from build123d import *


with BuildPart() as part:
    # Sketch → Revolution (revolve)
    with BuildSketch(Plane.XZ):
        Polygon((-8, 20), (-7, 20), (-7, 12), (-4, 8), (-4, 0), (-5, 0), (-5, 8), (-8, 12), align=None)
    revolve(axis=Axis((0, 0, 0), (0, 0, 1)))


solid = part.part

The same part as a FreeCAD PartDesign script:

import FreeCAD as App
import Part
import Sketcher

V = App.Vector
Q = App.Units.Quantity


def add_polygon(sketch, points):
    """Adds a closed chain of lines whose ends are joined by coincident constraints."""
    first, n = sketch.GeometryCount, len(points)
    for a, b in zip(points, points[1:] + points[:1]):
        sketch.addGeometry(Part.LineSegment(App.Vector(*a, 0), App.Vector(*b, 0)), False)
    for i in range(n):
        sketch.addConstraint(Sketcher.Constraint("Coincident", first + i, 2, first + (i + 1) % n, 1))

doc = App.newDocument("Part")
body = doc.addObject("PartDesign::Body", "Body")

# Sketch on XZ plane
sketch1 = doc.addObject("Sketcher::SketchObject", "Sketch")
body.addObject(sketch1)
sketch1.AttachmentSupport = (doc.XZ_Plane, [""])
sketch1.MapMode = "FlatFace"
add_polygon(sketch1, [(-7, 20), (-8, 20), (-8, 12), (-5, 8), (-5, 0), (-4, 0), (-4, 8), (-7, 12)])  # lines 0-7
sketch1.addConstraint(Sketcher.Constraint("Horizontal", 0))
sketch1.addConstraint(Sketcher.Constraint("Vertical", 1))
sketch1.addConstraint(Sketcher.Constraint("Vertical", 3))
sketch1.addConstraint(Sketcher.Constraint("Horizontal", 4))
sketch1.addConstraint(Sketcher.Constraint("Vertical", 5))
sketch1.addConstraint(Sketcher.Constraint("Vertical", 7))
sketch1.addConstraint(Sketcher.Constraint("PointOnObject", 3, 2, -1))
sketch1.addConstraint(Sketcher.Constraint("Parallel", 2, 6))
sketch1.addConstraint(Sketcher.Constraint("Horizontal", 2, 2, 5, 2))
sketch1.addConstraint(Sketcher.Constraint("Horizontal", 1, 2, 6, 2))
sketch1.addConstraint(Sketcher.Constraint("Equal", 1, 3))
sketch1.addConstraint(Sketcher.Constraint("DistanceX", 0, 2, 0, 1, Q("1 mm")))
sketch1.addConstraint(Sketcher.Constraint("DistanceY", 1, 2, 1, 1, Q("8 mm")))
sketch1.addConstraint(Sketcher.Constraint("Distance", 2, Q("5 mm")))
sketch1.addConstraint(Sketcher.Constraint("DistanceX", 0, 2, -1, 1, Q("8 mm")))
sketch1.addConstraint(Sketcher.Constraint("DistanceY", -1, 1, 0, 2, Q("20 mm")))
revolution = doc.addObject("PartDesign::Revolution", "Revolution")
body.addObject(revolution)
revolution.Profile = sketch1
revolution.ReferenceAxis = (sketch1, ["V_Axis"])
revolution.Angle = 360

doc.recompute()
